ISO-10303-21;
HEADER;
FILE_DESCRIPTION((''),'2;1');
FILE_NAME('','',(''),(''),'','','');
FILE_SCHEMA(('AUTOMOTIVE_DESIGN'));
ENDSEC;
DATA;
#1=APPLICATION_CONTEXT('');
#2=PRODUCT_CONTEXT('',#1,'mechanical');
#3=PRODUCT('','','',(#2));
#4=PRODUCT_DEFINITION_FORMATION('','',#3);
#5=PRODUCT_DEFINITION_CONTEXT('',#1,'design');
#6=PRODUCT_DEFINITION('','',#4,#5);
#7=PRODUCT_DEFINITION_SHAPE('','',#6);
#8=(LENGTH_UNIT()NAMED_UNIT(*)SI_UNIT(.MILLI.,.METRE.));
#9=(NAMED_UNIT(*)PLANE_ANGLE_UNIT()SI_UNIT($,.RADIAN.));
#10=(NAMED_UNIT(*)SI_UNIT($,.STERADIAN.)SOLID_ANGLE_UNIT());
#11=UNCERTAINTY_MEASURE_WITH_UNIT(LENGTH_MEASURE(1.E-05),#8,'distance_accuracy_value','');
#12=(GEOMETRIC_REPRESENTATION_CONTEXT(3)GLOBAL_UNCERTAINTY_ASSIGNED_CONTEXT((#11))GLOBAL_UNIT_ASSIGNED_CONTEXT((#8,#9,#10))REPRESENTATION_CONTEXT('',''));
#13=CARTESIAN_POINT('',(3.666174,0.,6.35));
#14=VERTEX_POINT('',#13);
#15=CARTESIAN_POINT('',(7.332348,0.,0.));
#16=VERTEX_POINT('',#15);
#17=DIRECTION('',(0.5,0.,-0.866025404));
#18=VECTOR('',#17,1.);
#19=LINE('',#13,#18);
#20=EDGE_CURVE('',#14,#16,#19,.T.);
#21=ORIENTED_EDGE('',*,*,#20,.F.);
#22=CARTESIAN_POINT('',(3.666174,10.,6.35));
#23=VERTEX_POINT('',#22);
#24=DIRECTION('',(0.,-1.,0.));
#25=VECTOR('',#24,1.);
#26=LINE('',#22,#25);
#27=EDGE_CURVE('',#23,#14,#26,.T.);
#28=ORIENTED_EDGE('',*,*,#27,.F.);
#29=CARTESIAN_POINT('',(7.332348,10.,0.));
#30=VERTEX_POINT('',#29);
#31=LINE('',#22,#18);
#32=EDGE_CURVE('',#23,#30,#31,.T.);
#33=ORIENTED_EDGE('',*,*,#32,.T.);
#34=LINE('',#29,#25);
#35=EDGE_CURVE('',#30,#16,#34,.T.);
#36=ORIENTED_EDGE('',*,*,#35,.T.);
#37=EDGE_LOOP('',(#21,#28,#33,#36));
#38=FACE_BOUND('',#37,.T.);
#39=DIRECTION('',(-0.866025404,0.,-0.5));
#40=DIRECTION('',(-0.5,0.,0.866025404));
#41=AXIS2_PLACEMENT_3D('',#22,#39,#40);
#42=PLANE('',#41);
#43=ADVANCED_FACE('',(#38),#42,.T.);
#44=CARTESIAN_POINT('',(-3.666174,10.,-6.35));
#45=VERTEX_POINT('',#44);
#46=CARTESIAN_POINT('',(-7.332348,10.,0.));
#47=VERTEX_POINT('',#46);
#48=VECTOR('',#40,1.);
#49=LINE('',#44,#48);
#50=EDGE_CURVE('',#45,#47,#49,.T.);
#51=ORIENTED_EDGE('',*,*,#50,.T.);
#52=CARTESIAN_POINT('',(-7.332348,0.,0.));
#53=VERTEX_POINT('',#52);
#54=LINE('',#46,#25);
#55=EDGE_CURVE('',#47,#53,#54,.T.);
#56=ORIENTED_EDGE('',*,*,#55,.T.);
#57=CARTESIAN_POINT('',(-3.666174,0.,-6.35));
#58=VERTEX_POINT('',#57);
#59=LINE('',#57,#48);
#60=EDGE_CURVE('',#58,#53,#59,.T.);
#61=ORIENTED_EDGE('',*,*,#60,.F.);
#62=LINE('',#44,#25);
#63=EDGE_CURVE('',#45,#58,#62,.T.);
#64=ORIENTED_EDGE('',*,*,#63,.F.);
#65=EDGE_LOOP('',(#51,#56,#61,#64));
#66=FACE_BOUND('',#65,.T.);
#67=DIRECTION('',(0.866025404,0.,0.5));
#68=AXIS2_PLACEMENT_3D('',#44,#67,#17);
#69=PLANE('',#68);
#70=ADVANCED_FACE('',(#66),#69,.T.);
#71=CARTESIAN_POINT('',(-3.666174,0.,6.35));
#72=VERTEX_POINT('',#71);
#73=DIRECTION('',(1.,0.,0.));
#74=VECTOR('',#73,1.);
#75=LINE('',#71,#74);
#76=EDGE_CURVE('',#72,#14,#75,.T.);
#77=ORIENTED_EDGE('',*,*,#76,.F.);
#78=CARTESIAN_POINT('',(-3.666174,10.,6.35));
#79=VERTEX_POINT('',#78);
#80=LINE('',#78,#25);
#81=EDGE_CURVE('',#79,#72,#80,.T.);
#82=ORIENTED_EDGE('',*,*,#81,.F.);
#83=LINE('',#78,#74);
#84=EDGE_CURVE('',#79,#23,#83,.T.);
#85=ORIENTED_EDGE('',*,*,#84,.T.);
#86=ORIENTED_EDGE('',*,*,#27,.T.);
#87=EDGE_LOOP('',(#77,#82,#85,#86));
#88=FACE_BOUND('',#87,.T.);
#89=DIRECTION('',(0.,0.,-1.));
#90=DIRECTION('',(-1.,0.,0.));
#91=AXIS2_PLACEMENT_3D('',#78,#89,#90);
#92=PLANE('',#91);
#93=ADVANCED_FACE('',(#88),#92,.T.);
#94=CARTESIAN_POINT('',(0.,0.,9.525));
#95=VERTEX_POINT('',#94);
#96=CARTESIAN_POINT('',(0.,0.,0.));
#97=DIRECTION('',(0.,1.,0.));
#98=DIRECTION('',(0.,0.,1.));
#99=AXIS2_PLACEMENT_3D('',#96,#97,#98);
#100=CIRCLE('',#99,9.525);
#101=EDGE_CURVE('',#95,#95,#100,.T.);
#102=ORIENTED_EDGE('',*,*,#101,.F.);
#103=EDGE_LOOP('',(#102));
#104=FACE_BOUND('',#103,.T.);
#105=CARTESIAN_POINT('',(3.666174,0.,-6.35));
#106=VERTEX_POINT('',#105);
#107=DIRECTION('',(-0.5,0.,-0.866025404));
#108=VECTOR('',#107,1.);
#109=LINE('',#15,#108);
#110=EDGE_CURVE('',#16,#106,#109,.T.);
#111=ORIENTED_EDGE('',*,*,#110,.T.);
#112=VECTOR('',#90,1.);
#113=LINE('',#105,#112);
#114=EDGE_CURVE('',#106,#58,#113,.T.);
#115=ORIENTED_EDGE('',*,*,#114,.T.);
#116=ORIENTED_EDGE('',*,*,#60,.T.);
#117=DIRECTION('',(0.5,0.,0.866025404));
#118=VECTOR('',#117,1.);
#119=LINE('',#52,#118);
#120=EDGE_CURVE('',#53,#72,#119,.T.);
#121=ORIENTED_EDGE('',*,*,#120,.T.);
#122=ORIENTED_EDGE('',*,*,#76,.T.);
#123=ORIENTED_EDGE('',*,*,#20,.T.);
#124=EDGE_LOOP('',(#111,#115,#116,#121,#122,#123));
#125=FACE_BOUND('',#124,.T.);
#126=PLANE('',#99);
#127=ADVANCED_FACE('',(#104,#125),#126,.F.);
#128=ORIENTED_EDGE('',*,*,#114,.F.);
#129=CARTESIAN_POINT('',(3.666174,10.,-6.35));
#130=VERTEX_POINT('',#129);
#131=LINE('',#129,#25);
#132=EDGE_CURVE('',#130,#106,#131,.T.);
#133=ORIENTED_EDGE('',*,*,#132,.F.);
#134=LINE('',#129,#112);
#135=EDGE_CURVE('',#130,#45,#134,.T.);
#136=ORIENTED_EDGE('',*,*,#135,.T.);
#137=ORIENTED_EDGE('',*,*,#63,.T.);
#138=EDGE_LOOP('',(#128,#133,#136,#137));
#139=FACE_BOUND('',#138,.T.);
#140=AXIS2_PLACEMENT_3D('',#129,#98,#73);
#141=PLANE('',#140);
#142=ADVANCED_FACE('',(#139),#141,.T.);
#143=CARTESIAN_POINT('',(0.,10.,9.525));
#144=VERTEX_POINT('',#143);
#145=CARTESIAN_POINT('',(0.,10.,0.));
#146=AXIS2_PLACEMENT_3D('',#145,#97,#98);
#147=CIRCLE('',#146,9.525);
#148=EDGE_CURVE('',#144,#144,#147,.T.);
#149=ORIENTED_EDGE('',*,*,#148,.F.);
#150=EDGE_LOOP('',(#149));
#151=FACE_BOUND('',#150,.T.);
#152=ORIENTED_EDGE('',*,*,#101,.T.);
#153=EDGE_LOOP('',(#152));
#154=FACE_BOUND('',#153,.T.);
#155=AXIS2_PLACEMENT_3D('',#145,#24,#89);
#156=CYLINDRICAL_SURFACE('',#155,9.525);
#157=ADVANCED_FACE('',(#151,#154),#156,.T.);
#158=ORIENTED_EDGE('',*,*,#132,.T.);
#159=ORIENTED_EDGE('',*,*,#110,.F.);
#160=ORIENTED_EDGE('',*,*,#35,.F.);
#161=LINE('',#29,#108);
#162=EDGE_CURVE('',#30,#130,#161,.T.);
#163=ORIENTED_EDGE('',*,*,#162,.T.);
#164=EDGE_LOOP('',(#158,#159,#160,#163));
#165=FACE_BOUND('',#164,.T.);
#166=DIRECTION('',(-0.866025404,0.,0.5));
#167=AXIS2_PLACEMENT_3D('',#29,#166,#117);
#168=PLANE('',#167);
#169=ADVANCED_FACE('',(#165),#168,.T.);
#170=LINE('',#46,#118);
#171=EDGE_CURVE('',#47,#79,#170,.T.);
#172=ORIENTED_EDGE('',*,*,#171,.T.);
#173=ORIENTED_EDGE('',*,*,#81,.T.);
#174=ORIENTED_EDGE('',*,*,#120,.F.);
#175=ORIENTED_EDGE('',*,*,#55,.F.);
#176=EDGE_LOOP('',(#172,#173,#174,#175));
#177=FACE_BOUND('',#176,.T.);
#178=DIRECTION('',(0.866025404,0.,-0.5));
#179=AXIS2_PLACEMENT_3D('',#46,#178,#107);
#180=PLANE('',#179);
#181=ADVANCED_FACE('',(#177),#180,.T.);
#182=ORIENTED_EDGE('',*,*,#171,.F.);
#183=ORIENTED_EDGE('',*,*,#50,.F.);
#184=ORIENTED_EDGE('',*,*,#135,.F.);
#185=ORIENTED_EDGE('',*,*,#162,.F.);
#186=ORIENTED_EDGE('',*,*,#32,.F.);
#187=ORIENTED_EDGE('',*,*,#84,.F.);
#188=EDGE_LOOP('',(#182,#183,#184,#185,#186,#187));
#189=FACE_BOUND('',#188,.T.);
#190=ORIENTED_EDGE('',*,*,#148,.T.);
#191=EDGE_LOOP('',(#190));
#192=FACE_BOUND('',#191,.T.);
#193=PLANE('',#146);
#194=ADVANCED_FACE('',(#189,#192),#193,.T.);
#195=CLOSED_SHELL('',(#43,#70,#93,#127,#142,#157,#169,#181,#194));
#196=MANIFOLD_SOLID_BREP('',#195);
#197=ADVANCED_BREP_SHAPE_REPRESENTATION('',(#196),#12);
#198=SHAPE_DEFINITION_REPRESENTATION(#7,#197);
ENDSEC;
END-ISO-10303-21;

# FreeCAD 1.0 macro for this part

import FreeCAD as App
import Part
import Sketcher

V = App.Vector
Q = App.Units.Quantity


def add_polygon(sketch, points):
    """Adds a closed chain of lines whose ends are joined by coincident constraints."""
    first, n = sketch.GeometryCount, len(points)
    for a, b in zip(points, points[1:] + points[:1]):
        sketch.addGeometry(Part.LineSegment(App.Vector(*a, 0), App.Vector(*b, 0)), False)
    for i in range(n):
        sketch.addConstraint(Sketcher.Constraint("Coincident", first + i, 2, first + (i + 1) % n, 1))

doc = App.newDocument("Part")
body = doc.addObject("PartDesign::Body", "Body")

# Sketch on XZ plane
sketch1 = body.newObject("Sketcher::SketchObject", "Sketch")
sketch1.AttachmentSupport = (doc.getObject("XZ_Plane"), [""])
sketch1.MapMode = "FlatFace"
sketch1.addGeometry(Part.Circle(V(0, 0, 0), V(0, 0, 1), 10), False)  # 0
add_polygon(sketch1, [(4, -6), (7, 0), (4, 6), (-4, 6), (-7, 0), (-4, -6)])  # lines 1-6
sketch1.addConstraint(Sketcher.Constraint("Horizontal", 3))
sketch1.addConstraint(Sketcher.Constraint("Horizontal", 6))
sketch1.addConstraint(Sketcher.Constraint("Coincident", 0, 3, -1, 1))
sketch1.addConstraint(Sketcher.Constraint("Symmetric", 1, 2, 4, 2, -1, 1))
sketch1.addConstraint(Sketcher.Constraint("Symmetric", 2, 2, 5, 2, -1, 1))
sketch1.addConstraint(Sketcher.Constraint("PointOnObject", 1, 2, -1))
sketch1.addConstraint(Sketcher.Constraint("Parallel", 1, 4))
sketch1.addConstraint(Sketcher.Constraint("Vertical", 3, 2, 5, 2))
sketch1.addConstraint(Sketcher.Constraint("Diameter", 0, 19.05))
sketch1.addConstraint(Sketcher.Constraint("Angle", 1, Q("60 deg")))
sketch1.addConstraint(Sketcher.Constraint("DistanceY", 5, 2, 3, 2, 12.7))
sketch1.addConstraint(Sketcher.Constraint("DistanceX", 3, 2, 3, 1, 7.332348))
pad1 = body.newObject("PartDesign::Pad", "Pad")
pad1.Profile = sketch1
pad1.Length = 10
pad1.Reversed = True

doc.recompute()
